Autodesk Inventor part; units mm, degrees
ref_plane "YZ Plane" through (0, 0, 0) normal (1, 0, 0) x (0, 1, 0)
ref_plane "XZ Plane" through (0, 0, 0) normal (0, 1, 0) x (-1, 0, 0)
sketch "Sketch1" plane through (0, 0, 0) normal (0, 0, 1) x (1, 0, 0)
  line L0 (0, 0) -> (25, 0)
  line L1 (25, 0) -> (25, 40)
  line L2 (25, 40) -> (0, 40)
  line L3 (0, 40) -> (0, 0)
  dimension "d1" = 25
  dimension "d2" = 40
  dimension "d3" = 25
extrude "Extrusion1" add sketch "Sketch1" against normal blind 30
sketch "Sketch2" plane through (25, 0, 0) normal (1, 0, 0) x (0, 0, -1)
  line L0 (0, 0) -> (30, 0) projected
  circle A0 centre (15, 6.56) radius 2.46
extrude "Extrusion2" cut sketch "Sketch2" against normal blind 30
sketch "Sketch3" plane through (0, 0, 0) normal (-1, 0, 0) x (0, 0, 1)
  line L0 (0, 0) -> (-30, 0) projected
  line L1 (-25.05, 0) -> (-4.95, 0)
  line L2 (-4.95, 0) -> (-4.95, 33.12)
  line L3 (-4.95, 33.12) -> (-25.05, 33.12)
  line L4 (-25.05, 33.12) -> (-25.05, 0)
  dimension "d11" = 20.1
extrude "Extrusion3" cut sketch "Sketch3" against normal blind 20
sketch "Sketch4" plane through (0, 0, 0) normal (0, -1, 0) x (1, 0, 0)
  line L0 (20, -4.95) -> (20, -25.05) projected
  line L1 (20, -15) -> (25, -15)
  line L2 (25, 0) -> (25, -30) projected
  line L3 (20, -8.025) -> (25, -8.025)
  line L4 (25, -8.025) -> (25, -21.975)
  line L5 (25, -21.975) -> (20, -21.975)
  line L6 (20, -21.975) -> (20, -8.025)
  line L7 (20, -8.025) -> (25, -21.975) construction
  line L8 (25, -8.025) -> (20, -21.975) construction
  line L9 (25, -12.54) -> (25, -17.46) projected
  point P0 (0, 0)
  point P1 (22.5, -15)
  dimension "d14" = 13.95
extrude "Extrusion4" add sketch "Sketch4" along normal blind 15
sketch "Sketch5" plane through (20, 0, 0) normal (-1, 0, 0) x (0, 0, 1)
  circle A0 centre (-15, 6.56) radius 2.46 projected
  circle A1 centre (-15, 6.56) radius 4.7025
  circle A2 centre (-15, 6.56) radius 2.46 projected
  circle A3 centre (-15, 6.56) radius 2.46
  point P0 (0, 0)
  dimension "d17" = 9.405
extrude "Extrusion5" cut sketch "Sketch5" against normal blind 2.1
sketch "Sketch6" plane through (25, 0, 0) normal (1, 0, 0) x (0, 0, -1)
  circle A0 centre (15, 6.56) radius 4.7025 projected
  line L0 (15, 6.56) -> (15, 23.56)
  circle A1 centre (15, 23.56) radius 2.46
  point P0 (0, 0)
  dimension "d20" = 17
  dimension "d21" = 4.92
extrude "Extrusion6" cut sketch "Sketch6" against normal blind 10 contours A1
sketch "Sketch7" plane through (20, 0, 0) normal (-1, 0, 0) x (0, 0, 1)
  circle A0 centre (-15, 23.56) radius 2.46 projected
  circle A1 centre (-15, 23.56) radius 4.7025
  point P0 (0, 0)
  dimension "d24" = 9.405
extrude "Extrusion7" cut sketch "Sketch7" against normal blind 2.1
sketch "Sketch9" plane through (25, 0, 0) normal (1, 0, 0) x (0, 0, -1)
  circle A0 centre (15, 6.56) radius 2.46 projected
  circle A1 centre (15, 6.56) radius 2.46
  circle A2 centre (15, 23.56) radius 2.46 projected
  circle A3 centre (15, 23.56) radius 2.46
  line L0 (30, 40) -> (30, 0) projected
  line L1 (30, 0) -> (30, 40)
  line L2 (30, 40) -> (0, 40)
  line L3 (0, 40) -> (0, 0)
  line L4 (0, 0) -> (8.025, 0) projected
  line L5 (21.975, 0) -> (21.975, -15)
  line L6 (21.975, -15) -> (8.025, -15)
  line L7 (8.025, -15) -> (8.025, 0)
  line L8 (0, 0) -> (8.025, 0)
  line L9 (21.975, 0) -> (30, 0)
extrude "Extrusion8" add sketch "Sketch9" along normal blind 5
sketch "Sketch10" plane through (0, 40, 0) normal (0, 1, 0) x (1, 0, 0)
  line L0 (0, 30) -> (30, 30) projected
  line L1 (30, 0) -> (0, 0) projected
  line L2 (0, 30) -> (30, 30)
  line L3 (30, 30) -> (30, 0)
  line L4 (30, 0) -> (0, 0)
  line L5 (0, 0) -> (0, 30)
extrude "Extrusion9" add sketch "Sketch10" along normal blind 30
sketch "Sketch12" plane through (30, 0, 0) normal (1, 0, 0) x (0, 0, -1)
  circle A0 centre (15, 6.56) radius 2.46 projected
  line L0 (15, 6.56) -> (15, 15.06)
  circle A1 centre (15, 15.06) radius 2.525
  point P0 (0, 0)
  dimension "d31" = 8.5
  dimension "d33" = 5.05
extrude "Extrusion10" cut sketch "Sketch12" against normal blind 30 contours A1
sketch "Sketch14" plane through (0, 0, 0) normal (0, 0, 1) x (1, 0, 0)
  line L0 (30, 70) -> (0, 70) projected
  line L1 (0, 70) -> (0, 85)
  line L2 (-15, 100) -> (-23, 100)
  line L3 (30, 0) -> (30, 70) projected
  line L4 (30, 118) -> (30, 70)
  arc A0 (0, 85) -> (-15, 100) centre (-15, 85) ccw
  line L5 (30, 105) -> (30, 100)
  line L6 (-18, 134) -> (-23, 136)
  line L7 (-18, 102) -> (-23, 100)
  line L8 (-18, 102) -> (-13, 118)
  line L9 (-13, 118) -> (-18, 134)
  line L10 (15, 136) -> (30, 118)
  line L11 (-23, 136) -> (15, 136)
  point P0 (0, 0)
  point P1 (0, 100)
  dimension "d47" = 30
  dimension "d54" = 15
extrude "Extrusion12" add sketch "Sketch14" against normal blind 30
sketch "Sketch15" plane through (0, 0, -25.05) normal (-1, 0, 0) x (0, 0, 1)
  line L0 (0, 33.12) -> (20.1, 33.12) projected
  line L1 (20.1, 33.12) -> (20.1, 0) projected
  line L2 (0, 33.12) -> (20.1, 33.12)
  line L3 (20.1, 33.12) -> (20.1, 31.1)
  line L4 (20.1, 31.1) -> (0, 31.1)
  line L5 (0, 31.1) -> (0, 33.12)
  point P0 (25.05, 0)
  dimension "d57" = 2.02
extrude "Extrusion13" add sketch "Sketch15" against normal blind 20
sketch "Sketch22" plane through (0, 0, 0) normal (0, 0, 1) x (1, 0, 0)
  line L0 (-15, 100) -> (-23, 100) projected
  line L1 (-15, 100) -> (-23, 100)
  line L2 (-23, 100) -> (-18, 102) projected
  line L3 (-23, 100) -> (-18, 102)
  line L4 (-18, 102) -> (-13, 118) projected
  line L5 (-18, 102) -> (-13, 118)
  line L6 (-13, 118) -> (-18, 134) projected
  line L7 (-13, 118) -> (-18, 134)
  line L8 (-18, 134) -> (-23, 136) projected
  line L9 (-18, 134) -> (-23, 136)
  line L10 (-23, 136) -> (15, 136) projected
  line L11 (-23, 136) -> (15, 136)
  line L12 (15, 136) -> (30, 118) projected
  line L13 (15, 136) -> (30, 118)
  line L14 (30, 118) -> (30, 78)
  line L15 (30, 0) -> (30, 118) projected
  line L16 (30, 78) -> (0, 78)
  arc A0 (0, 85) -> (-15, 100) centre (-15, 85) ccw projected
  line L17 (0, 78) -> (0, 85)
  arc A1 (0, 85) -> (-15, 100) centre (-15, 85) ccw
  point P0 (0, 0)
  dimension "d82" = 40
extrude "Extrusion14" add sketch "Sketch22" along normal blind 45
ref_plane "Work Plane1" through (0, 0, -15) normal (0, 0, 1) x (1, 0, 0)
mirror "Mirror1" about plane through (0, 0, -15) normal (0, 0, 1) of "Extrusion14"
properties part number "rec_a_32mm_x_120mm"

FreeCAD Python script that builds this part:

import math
import FreeCAD as App
import Part
import Sketcher

V = App.Vector
Q = App.Units.Quantity

doc = App.newDocument("Part")
body = doc.addObject("PartDesign::Body", "Body")

# Sketch on XY plane
sketch1 = body.newObject("Sketcher::SketchObject", "Sketch")
sketch1.AttachmentSupport = (doc.getObject("XY_Plane"), [""])
sketch1.MapMode = "FlatFace"
sketch1.addGeometry([
    Part.LineSegment(V(0, 40, 0), V(0, 0, 0)),
    Part.LineSegment(V(0, 0, 0), V(25, 0, 0)),
    Part.LineSegment(V(25, 0, 0), V(25, 40, 0)),
    Part.LineSegment(V(25, 40, 0), V(0, 40, 0)),
], False)
sketch1.addConstraint([
    Sketcher.Constraint("Coincident", 0, 2, 1, 1),
    Sketcher.Constraint("Coincident", 1, 2, 2, 1),
    Sketcher.Constraint("Coincident", 2, 2, 3, 1),
    Sketcher.Constraint("Coincident", 3, 2, 0, 1),
    Sketcher.Constraint("Vertical", 0),
    Sketcher.Constraint("Horizontal", 1),
    Sketcher.Constraint("Vertical", 2),
    Sketcher.Constraint("Horizontal", 3),
    Sketcher.Constraint("Coincident", 0, 2, -1, 1),
    Sketcher.Constraint("DistanceX", 1, 1, 1, 2, Q("25 mm")),
    Sketcher.Constraint("DistanceY", 0, 2, 0, 1, Q("40 mm")),
])
pad1 = body.newObject("PartDesign::Pad", "Pad")
pad1.Profile = sketch1
pad1.Length = 30
pad1.Reversed = True

# Sketch on YZ plane
sketch2 = body.newObject("Sketcher::SketchObject", "Sketch001")
sketch2.AttachmentSupport = (doc.getObject("YZ_Plane"), [""])
sketch2.MapMode = "FlatFace"
sketch2.AttachmentOffset = App.Placement(V(0, 0, 25), App.Rotation())
sketch2.addGeometry(Part.Circle(V(6.6, -15, 0), V(0, 0, 1), 2.5), False)
sketch2.addConstraint([
    Sketcher.Constraint("Diameter", 0, Q("4.92 mm")),
    Sketcher.Constraint("DistanceY", 0, 3, -1, 1, Q("15 mm")),
    Sketcher.Constraint("DistanceX", -1, 1, 0, 3, Q("6.56 mm")),
])
pocket1 = body.newObject("PartDesign::Pocket", "Pocket")
pocket1.Profile = sketch2
pocket1.Length = 30

# Sketch on YZ plane
sketch3 = body.newObject("Sketcher::SketchObject", "Sketch002")
sketch3.AttachmentSupport = (doc.getObject("YZ_Plane"), [""])
sketch3.MapMode = "FlatFace"
sketch3.addGeometry([
    Part.LineSegment(V(0, -25, 0), V(0, -5, 0)),
    Part.LineSegment(V(0, -5, 0), V(33, -5, 0)),
    Part.LineSegment(V(33, -5, 0), V(33, -25, 0)),
    Part.LineSegment(V(33, -25, 0), V(0, -25, 0)),
], False)
sketch3.addConstraint([
    Sketcher.Constraint("Coincident", 0, 2, 1, 1),
    Sketcher.Constraint("Coincident", 1, 2, 2, 1),
    Sketcher.Constraint("Coincident", 2, 2, 3, 1),
    Sketcher.Constraint("Coincident", 3, 2, 0, 1),
    Sketcher.Constraint("Vertical", 0),
    Sketcher.Constraint("Horizontal", 1),
    Sketcher.Constraint("Vertical", 2),
    Sketcher.Constraint("Horizontal", 3),
    Sketcher.Constraint("PointOnObject", 0, 2, -2),
    Sketcher.Constraint("DistanceY", 0, 1, 0, 2, Q("20.1 mm")),
    Sketcher.Constraint("DistanceX", 1, 1, 1, 2, Q("33.12 mm")),
    Sketcher.Constraint("DistanceY", 0, 2, -1, 1, Q("4.95 mm")),
])
pocket2 = body.newObject("PartDesign::Pocket", "Pocket001")
pocket2.Profile = sketch3
pocket2.Length = 20
pocket2.Reversed = True

# Sketch on XZ plane
sketch4 = body.newObject("Sketcher::SketchObject", "Sketch003")
sketch4.AttachmentSupport = (doc.getObject("XZ_Plane"), [""])
sketch4.MapMode = "FlatFace"
sketch4.addGeometry([
    Part.LineSegment(V(25, -8, 0), V(20, -8, 0)),
    Part.LineSegment(V(20, -8, 0), V(20, -22, 0)),
    Part.LineSegment(V(20, -22, 0), V(25, -22, 0)),
    Part.LineSegment(V(25, -22, 0), V(25, -8, 0)),
], False)
sketch4.addConstraint([
    Sketcher.Constraint("Coincident", 0, 2, 1, 1),
    Sketcher.Constraint("Coincident", 1, 2, 2, 1),
    Sketcher.Constraint("Coincident", 2, 2, 3, 1),
    Sketcher.Constraint("Coincident", 3, 2, 0, 1),
    Sketcher.Constraint("Horizontal", 0),
    Sketcher.Constraint("Vertical", 1),
    Sketcher.Constraint("Horizontal", 2),
    Sketcher.Constraint("Vertical", 3),
    Sketcher.Constraint("DistanceY", 1, 2, 1, 1, Q("13.95 mm")),
    Sketcher.Constraint("DistanceX", 0, 2, 0, 1, Q("5 mm")),
    Sketcher.Constraint("DistanceX", -1, 1, 0, 2, Q("20 mm")),
    Sketcher.Constraint("DistanceY", 0, 2, -1, 1, Q("8.025 mm")),
])
pad2 = body.newObject("PartDesign::Pad", "Pad001")
pad2.Profile = sketch4
pad2.Length = 15

# Sketch on YZ plane
sketch5 = body.newObject("Sketcher::SketchObject", "Sketch004")
sketch5.AttachmentSupport = (doc.getObject("YZ_Plane"), [""])
sketch5.MapMode = "FlatFace"
sketch5.AttachmentOffset = App.Placement(V(0, 0, 20), App.Rotation())
sketch5.addGeometry([
    Part.Circle(V(6.6, -15, 0), V(0, 0, 1), 4.7),
    Part.Circle(V(6.6, -15, 0), V(0, 0, 1), 2.5),
], False)
sketch5.addConstraint([
    Sketcher.Constraint("Coincident", 1, 3, 0, 3),
    Sketcher.Constraint("Diameter", 0, Q("9.405 mm")),
    Sketcher.Constraint("Diameter", 1, Q("4.92 mm")),
    Sketcher.Constraint("DistanceY", 0, 3, -1, 1, Q("15 mm")),
    Sketcher.Constraint("DistanceX", -1, 1, 0, 3, Q("6.56 mm")),
])
pocket3 = body.newObject("PartDesign::Pocket", "Pocket002")
pocket3.Profile = sketch5
pocket3.Length = 2.1
pocket3.Reversed = True

# Sketch on YZ plane
sketch6 = body.newObject("Sketcher::SketchObject", "Sketch005")
sketch6.AttachmentSupport = (doc.getObject("YZ_Plane"), [""])
sketch6.MapMode = "FlatFace"
sketch6.AttachmentOffset = App.Placement(V(0, 0, 25), App.Rotation())
sketch6.addGeometry(Part.Circle(V(23.6, -15, 0), V(0, 0, 1), 2.5), False)
sketch6.addConstraint([
    Sketcher.Constraint("Diameter", 0, Q("4.92 mm")),
    Sketcher.Constraint("DistanceY", 0, 3, -1, 1, Q("15 mm")),
    Sketcher.Constraint("DistanceX", -1, 1, 0, 3, Q("23.56 mm")),
])
pocket4 = body.newObject("PartDesign::Pocket", "Pocket003")
pocket4.Profile = sketch6
pocket4.Length = 10

# Sketch on YZ plane
sketch7 = body.newObject("Sketcher::SketchObject", "Sketch006")
sketch7.AttachmentSupport = (doc.getObject("YZ_Plane"), [""])
sketch7.MapMode = "FlatFace"
sketch7.AttachmentOffset = App.Placement(V(0, 0, 20), App.Rotation())
sketch7.addGeometry([
    Part.Circle(V(23.6, -15, 0), V(0, 0, 1), 4.7),
    Part.Circle(V(23.6, -15, 0), V(0, 0, 1), 2.5),
], False)
sketch7.addConstraint([
    Sketcher.Constraint("Coincident", 1, 3, 0, 3),
    Sketcher.Constraint("Diameter", 0, Q("9.405 mm")),
    Sketcher.Constraint("Diameter", 1, Q("4.92 mm")),
    Sketcher.Constraint("DistanceY", 0, 3, -1, 1, Q("15 mm")),
    Sketcher.Constraint("DistanceX", -1, 1, 0, 3, Q("23.56 mm")),
])
pocket5 = body.newObject("PartDesign::Pocket", "Pocket004")
pocket5.Profile = sketch7
pocket5.Length = 2.1
pocket5.Reversed = True

# Sketch on YZ plane
sketch8 = body.newObject("Sketcher::SketchObject", "Sketch007")
sketch8.AttachmentSupport = (doc.getObject("YZ_Plane"), [""])
sketch8.MapMode = "FlatFace"
sketch8.AttachmentOffset = App.Placement(V(0, 0, 25), App.Rotation())
sketch8.addGeometry([
    Part.LineSegment(V(0, -30, 0), V(40, -30, 0)),  # 0
    Part.LineSegment(V(40, -30, 0), V(40, 0, 0)),  # 1
    Part.LineSegment(V(40, 0, 0), V(0, 0, 0)),  # 2
    Part.LineSegment(V(0, 0, 0), V(0, -8, 0)),  # 3
    Part.LineSegment(V(0, -8, 0), V(-15, -8, 0)),  # 4
    Part.LineSegment(V(-15, -8, 0), V(-15, -22, 0)),  # 5
    Part.LineSegment(V(-15, -22, 0), V(0, -22, 0)),  # 6
    Part.LineSegment(V(0, -22, 0), V(0, -30, 0)),  # 7
    Part.Circle(V(6.6, -15, 0), V(0, 0, 1), 2.5),  # 8
    Part.Circle(V(23.6, -15, 0), V(0, 0, 1), 2.5),  # 9
], False)
sketch8.addConstraint([
    Sketcher.Constraint("Coincident", 0, 2, 1, 1),
    Sketcher.Constraint("Coincident", 1, 2, 2, 1),
    Sketcher.Constraint("Coincident", 2, 2, 3, 1),
    Sketcher.Constraint("Coincident", 3, 2, 4, 1),
    Sketcher.Constraint("Coincident", 4, 2, 5, 1),
    Sketcher.Constraint("Coincident", 5, 2, 6, 1),
    Sketcher.Constraint("Coincident", 6, 2, 7, 1),
    Sketcher.Constraint("Coincident", 7, 2, 0, 1),
    Sketcher.Constraint("Horizontal", 0),
    Sketcher.Constraint("Vertical", 1),
    Sketcher.Constraint("Horizontal", 2),
    Sketcher.Constraint("Vertical", 3),
    Sketcher.Constraint("Horizontal", 4),
    Sketcher.Constraint("Vertical", 5),
    Sketcher.Constraint("Horizontal", 6),
    Sketcher.Constraint("Vertical", 7),
    Sketcher.Constraint("Coincident", 2, 2, -1, 1),
    Sketcher.Constraint("Equal", 8, 9),
    Sketcher.Constraint("PointOnObject", 6, 2, -2),
    Sketcher.Constraint("Horizontal", 8, 3, 9, 3),
    Sketcher.Constraint("Equal", 3, 7),
    Sketcher.Constraint("Diameter", 8, Q("4.92 mm")),
    Sketcher.Constraint("DistanceX", 0, 1, 0, 2, Q("40 mm")),
    Sketcher.Constraint("DistanceX", 4, 2, 4, 1, Q("15 mm")),
    Sketcher.Constraint("DistanceY", 1, 1, 1, 2, Q("30 mm")),
    Sketcher.Constraint("DistanceY", 8, 3, -1, 1, Q("15 mm")),
    Sketcher.Constraint("DistanceX", 8, 3, 9, 3, Q("17 mm")),
    Sketcher.Constraint("DistanceY", 5, 2, 5, 1, Q("13.95 mm")),
    Sketcher.Constraint("DistanceX", -1, 1, 8, 3, Q("6.56 mm")),
])
pad3 = body.newObject("PartDesign::Pad", "Pad002")
pad3.Profile = sketch8
pad3.Length = 5

# Sketch on XZ plane
sketch9 = body.newObject("Sketcher::SketchObject", "Sketch008")
sketch9.AttachmentSupport = (doc.getObject("XZ_Plane"), [""])
sketch9.MapMode = "FlatFace"
sketch9.AttachmentOffset = App.Placement(V(0, 0, -40), App.Rotation())
sketch9.addGeometry([
    Part.LineSegment(V(30, -30, 0), V(0, -30, 0)),
    Part.LineSegment(V(0, -30, 0), V(0, 0, 0)),
    Part.LineSegment(V(0, 0, 0), V(30, 0, 0)),
    Part.LineSegment(V(30, 0, 0), V(30, -30, 0)),
], False)
sketch9.addConstraint([
    Sketcher.Constraint("Coincident", 0, 2, 1, 1),
    Sketcher.Constraint("Coincident", 1, 2, 2, 1),
    Sketcher.Constraint("Coincident", 2, 2, 3, 1),
    Sketcher.Constraint("Coincident", 3, 2, 0, 1),
    Sketcher.Constraint("Horizontal", 0),
    Sketcher.Constraint("Vertical", 1),
    Sketcher.Constraint("Horizontal", 2),
    Sketcher.Constraint("Vertical", 3),
    Sketcher.Constraint("Coincident", 1, 2, -1, 1),
    Sketcher.Constraint("Equal", 2, 1),
    Sketcher.Constraint("DistanceX", 0, 2, 0, 1, Q("30 mm")),
])
pad4 = body.newObject("PartDesign::Pad", "Pad003")
pad4.Profile = sketch9
pad4.Length = 30
pad4.Reversed = True

# Sketch on YZ plane
sketch10 = body.newObject("Sketcher::SketchObject", "Sketch009")
sketch10.AttachmentSupport = (doc.getObject("YZ_Plane"), [""])
sketch10.MapMode = "FlatFace"
sketch10.AttachmentOffset = App.Placement(V(0, 0, 30), App.Rotation())
sketch10.addGeometry(Part.Circle(V(15.1, -15, 0), V(0, 0, 1), 2.5), False)
sketch10.addConstraint([
    Sketcher.Constraint("Diameter", 0, Q("5.05 mm")),
    Sketcher.Constraint("DistanceY", 0, 3, -1, 1, Q("15 mm")),
    Sketcher.Constraint("DistanceX", -1, 1, 0, 3, Q("15.06 mm")),
])
pocket6 = body.newObject("PartDesign::Pocket", "Pocket005")
pocket6.Profile = sketch10
pocket6.Length = 30

# Sketch on XY plane
sketch11 = body.newObject("Sketcher::SketchObject", "Sketch010")
sketch11.AttachmentSupport = (doc.getObject("XY_Plane"), [""])
sketch11.MapMode = "FlatFace"
sketch11.addGeometry([
    Part.LineSegment(V(0, 70, 0), V(30, 70, 0)),  # 0
    Part.LineSegment(V(30, 70, 0), V(30, 118, 0)),  # 1
    Part.LineSegment(V(30, 118, 0), V(15, 136, 0)),  # 2
    Part.LineSegment(V(15, 136, 0), V(-23, 136, 0)),  # 3
    Part.LineSegment(V(-23, 136, 0), V(-18, 134, 0)),  # 4
    Part.LineSegment(V(-18, 134, 0), V(-13, 118, 0)),  # 5
    Part.LineSegment(V(-13, 118, 0), V(-18, 102, 0)),  # 6
    Part.LineSegment(V(-18, 102, 0), V(-23, 100, 0)),  # 7
    Part.LineSegment(V(-23, 100, 0), V(-15, 100, 0)),  # 8
    Part.ArcOfCircle(Part.Circle(V(-15, 85, 0), V(0, 0, 1), 15), math.radians(0), math.radians(90)),  # 9
    Part.LineSegment(V(0, 85, 0), V(0, 70, 0)),  # 10
], False)
sketch11.addConstraint([
    Sketcher.Constraint("Coincident", 0, 2, 1, 1),
    Sketcher.Constraint("Coincident", 1, 2, 2, 1),
    Sketcher.Constraint("Coincident", 2, 2, 3, 1),
    Sketcher.Constraint("Coincident", 3, 2, 4, 1),
    Sketcher.Constraint("Coincident", 4, 2, 5, 1),
    Sketcher.Constraint("Coincident", 5, 2, 6, 1),
    Sketcher.Constraint("Coincident", 6, 2, 7, 1),
    Sketcher.Constraint("Coincident", 7, 2, 8, 1),
    Sketcher.Constraint("Tangent", 8, 2, 9, 2),
    Sketcher.Constraint("Tangent", 9, 1, 10, 1),
    Sketcher.Constraint("Coincident", 10, 2, 0, 1),
    Sketcher.Constraint("Horizontal", 0),
    Sketcher.Constraint("Vertical", 1),
    Sketcher.Constraint("Horizontal", 3),
    Sketcher.Constraint("Horizontal", 8),
    Sketcher.Constraint("Vertical", 10),
    Sketcher.Constraint("PointOnObject", 9, 1, -2),
    Sketcher.Constraint("Horizontal", 1, 2, 5, 2),
    Sketcher.Constraint("Vertical", 4, 2, 6, 2),
    Sketcher.Constraint("Vertical", 3, 2, 7, 2),
    Sketcher.Constraint("Equal", 5, 6),
    Sketcher.Constraint("Equal", 4, 7),
    Sketcher.Constraint("Radius", 9, Q("15 mm")),
    Sketcher.Constraint("DistanceX", 0, 1, 0, 2, Q("30 mm")),
    Sketcher.Constraint("DistanceY", 10, 2, 10, 1, Q("15 mm")),
    Sketcher.Constraint("DistanceX", -1, 1, 2, 2, Q("15 mm")),
    Sketcher.Constraint("DistanceX", 3, 2, 3, 1, Q("38 mm")),
    Sketcher.Constraint("DistanceY", 1, 1, 1, 2, Q("48 mm")),
    Sketcher.Constraint("DistanceY", -1, 1, 9, 3, Q("85 mm")),
    Sketcher.Constraint("DistanceX", 4, 2, -1, 1, Q("18 mm")),
    Sketcher.Constraint("DistanceY", -1, 1, 4, 2, Q("134 mm")),
    Sketcher.Constraint("DistanceX", 5, 2, -1, 1, Q("13 mm")),
])
pad5 = body.newObject("PartDesign::Pad", "Pad004")
pad5.Profile = sketch11
pad5.Length = 30
pad5.Reversed = True

# Sketch on YZ plane
sketch12 = body.newObject("Sketcher::SketchObject", "Sketch011")
sketch12.AttachmentSupport = (doc.getObject("YZ_Plane"), [""])
sketch12.MapMode = "FlatFace"
sketch12.addGeometry([
    Part.LineSegment(V(33.1, -5, 0), V(33.1, -25.1, 0)),
    Part.LineSegment(V(33.1, -25.1, 0), V(31.1, -25.1, 0)),
    Part.LineSegment(V(31.1, -25.1, 0), V(31.1, -5, 0)),
    Part.LineSegment(V(31.1, -5, 0), V(33.1, -5, 0)),
], False)
sketch12.addConstraint([
    Sketcher.Constraint("Coincident", 0, 2, 1, 1),
    Sketcher.Constraint("Coincident", 1, 2, 2, 1),
    Sketcher.Constraint("Coincident", 2, 2, 3, 1),
    Sketcher.Constraint("Coincident", 3, 2, 0, 1),
    Sketcher.Constraint("Vertical", 0),
    Sketcher.Constraint("Horizontal", 1),
    Sketcher.Constraint("Vertical", 2),
    Sketcher.Constraint("Horizontal", 3),
    Sketcher.Constraint("DistanceX", 1, 2, 1, 1, Q("2.02 mm")),
    Sketcher.Constraint("DistanceY", 0, 2, 0, 1, Q("20.1 mm")),
    Sketcher.Constraint("DistanceX", -1, 1, 1, 2, Q("31.1 mm")),
    Sketcher.Constraint("DistanceY", 0, 2, -1, 1, Q("25.05 mm")),
])
pad6 = body.newObject("PartDesign::Pad", "Pad005")
pad6.Profile = sketch12
pad6.Length = 20

# Sketch on XY plane
sketch13 = body.newObject("Sketcher::SketchObject", "Sketch012")
sketch13.AttachmentSupport = (doc.getObject("XY_Plane"), [""])
sketch13.MapMode = "FlatFace"
sketch13.addGeometry([
    Part.LineSegment(V(-23, 100, 0), V(-15, 100, 0)),  # 0
    Part.ArcOfCircle(Part.Circle(V(-15, 85, 0), V(0, 0, 1), 15), math.radians(0), math.radians(90)),  # 1
    Part.LineSegment(V(0, 85, 0), V(0, 78, 0)),  # 2
    Part.LineSegment(V(0, 78, 0), V(30, 78, 0)),  # 3
    Part.LineSegment(V(30, 78, 0), V(30, 118, 0)),  # 4
    Part.LineSegment(V(30, 118, 0), V(15, 136, 0)),  # 5
    Part.LineSegment(V(15, 136, 0), V(-23, 136, 0)),  # 6
    Part.LineSegment(V(-23, 136, 0), V(-18, 134, 0)),  # 7
    Part.LineSegment(V(-18, 134, 0), V(-13, 118, 0)),  # 8
    Part.LineSegment(V(-13, 118, 0), V(-18, 102, 0)),  # 9
    Part.LineSegment(V(-18, 102, 0), V(-23, 100, 0)),  # 10
], False)
sketch13.addConstraint([
    Sketcher.Constraint("Tangent", 0, 2, 1, 2),
    Sketcher.Constraint("Tangent", 1, 1, 2, 1),
    Sketcher.Constraint("Coincident", 2, 2, 3, 1),
    Sketcher.Constraint("Coincident", 3, 2, 4, 1),
    Sketcher.Constraint("Coincident", 4, 2, 5, 1),
    Sketcher.Constraint("Coincident", 5, 2, 6, 1),
    Sketcher.Constraint("Coincident", 6, 2, 7, 1),
    Sketcher.Constraint("Coincident", 7, 2, 8, 1),
    Sketcher.Constraint("Coincident", 8, 2, 9, 1),
    Sketcher.Constraint("Coincident", 9, 2, 10, 1),
    Sketcher.Constraint("Coincident", 10, 2, 0, 1),
    Sketcher.Constraint("Horizontal", 0),
    Sketcher.Constraint("Vertical", 2),
    Sketcher.Constraint("Horizontal", 3),
    Sketcher.Constraint("Vertical", 4),
    Sketcher.Constraint("Horizontal", 6),
    Sketcher.Constraint("PointOnObject", 1, 1, -2),
    Sketcher.Constraint("Horizontal", 4, 2, 8, 2),
    Sketcher.Constraint("Vertical", 7, 2, 9, 2),
    Sketcher.Constraint("Vertical", 6, 2, 10, 2),
    Sketcher.Constraint("Equal", 8, 9),
    Sketcher.Constraint("Equal", 7, 10),
    Sketcher.Constraint("DistanceY", 4, 1, 4, 2, Q("40 mm")),
    Sketcher.Constraint("Radius", 1, Q("15 mm")),
    Sketcher.Constraint("DistanceX", 0, 1, 0, 2, Q("8 mm")),
    Sketcher.Constraint("DistanceX", 3, 1, 3, 2, Q("30 mm")),
    Sketcher.Constraint("DistanceX", 6, 2, 6, 1, Q("38 mm")),
    Sketcher.Constraint("DistanceY", 2, 2, 2, 1, Q("7 mm")),
    Sketcher.Constraint("DistanceY", -1, 1, 1, 3, Q("85 mm")),
    Sketcher.Constraint("DistanceX", 7, 2, -1, 1, Q("18 mm")),
    Sketcher.Constraint("DistanceY", -1, 1, 7, 2, Q("134 mm")),
    Sketcher.Constraint("DistanceX", 8, 2, -1, 1, Q("13 mm")),
])
pad7 = body.newObject("PartDesign::Pad", "Pad006")
pad7.Profile = sketch13
pad7.Length = 45
doc.recompute()

datumplane = body.newObject("PartDesign::Plane", "DatumPlane")
datumplane.AttachmentSupport = (doc.getObject("XY_Plane"), [""])
datumplane.MapMode = "FlatFace"
datumplane.AttachmentOffset = App.Placement(V(0, 0, -15), App.Rotation())
mirrored = body.newObject("PartDesign::Mirrored", "Mirrored")
mirrored.Originals = [pad7]
mirrored.MirrorPlane = (datumplane, [""])
body.Tip = mirrored

doc.recompute()
